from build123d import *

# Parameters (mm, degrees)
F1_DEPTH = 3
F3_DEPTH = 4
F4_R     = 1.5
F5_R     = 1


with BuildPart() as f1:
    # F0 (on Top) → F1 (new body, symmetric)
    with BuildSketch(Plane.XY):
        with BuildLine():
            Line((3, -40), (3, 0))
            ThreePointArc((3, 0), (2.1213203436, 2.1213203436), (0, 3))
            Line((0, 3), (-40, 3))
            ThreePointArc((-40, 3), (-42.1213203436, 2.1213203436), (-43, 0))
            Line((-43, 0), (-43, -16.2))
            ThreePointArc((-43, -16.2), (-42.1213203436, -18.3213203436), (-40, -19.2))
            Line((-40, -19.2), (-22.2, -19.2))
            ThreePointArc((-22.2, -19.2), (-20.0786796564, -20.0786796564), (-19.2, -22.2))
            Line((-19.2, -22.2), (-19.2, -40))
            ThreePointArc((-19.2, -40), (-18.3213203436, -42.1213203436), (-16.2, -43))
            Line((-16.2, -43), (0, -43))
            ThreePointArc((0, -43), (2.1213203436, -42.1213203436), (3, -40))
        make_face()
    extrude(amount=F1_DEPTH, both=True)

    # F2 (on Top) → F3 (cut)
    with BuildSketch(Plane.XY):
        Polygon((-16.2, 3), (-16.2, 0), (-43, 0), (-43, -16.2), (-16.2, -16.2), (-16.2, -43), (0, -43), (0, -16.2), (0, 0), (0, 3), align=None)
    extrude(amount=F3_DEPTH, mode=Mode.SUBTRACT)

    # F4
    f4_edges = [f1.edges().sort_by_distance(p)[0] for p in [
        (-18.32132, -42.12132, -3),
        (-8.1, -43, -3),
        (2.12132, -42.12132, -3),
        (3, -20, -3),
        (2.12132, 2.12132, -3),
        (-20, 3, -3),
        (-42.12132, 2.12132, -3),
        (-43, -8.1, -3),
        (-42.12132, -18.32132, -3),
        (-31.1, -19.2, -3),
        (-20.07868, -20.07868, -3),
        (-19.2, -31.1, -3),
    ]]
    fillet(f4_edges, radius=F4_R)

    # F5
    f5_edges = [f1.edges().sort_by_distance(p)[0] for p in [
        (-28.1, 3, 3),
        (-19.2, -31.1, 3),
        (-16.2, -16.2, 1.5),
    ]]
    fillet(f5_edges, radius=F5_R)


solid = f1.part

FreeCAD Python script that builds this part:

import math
import FreeCAD as App
import Part
import Sketcher
from FreeCAD import Vector
Q = App.Units.Quantity


def edges_at(feature, points):
    """Names of the edges that pass closest to the given points."""
    edges = feature.Shape.Edges
    near = lambda p: min(range(len(edges)), key=lambda i: edges[i].distToShape(Part.Vertex(*p))[0])
    return sorted({f"Edge{near(p) + 1}" for p in points})

doc = App.newDocument("Part")
body = doc.addObject("PartDesign::Body", "Body")

# Sketch on XY plane
sketch1 = body.newObject("Sketcher::SketchObject", "Sketch")
sketch1.AttachmentSupport = (doc.getObject("XY_Plane"), [""])
sketch1.MapMode = "FlatFace"
sketch1.addGeometry([
    Part.LineSegment(Vector(3, -40, 0), Vector(3, 0, 0)),  # 0
    Part.ArcOfCircle(Part.Circle(Vector(0, 0, 0), Vector(0, 0, 1), 3), math.radians(0), math.radians(90)),  # 1
    Part.LineSegment(Vector(0, 3, 0), Vector(-40, 3, 0)),  # 2
    Part.ArcOfCircle(Part.Circle(Vector(-40, 0, 0), Vector(0, 0, 1), 3), math.radians(90), math.radians(180)),  # 3
    Part.LineSegment(Vector(-43, 0, 0), Vector(-43, -16.2, 0)),  # 4
    Part.ArcOfCircle(Part.Circle(Vector(-40, -16.2, 0), Vector(0, 0, 1), 3), math.radians(180), math.radians(270)),  # 5
    Part.LineSegment(Vector(-40, -19.2, 0), Vector(-22.2, -19.2, 0)),  # 6
    Part.ArcOfCircle(Part.Circle(Vector(-22.2, -22.2, 0), Vector(0, 0, 1), 3), math.radians(0), math.radians(90)),  # 7
    Part.LineSegment(Vector(-19.2, -22.2, 0), Vector(-19.2, -40, 0)),  # 8
    Part.ArcOfCircle(Part.Circle(Vector(-16.2, -40, 0), Vector(0, 0, 1), 3), math.radians(180), math.radians(270)),  # 9
    Part.LineSegment(Vector(-16.2, -43, 0), Vector(0, -43, 0)),  # 10
    Part.ArcOfCircle(Part.Circle(Vector(0, -40, 0), Vector(0, 0, 1), 3), math.radians(-90), math.radians(0)),  # 11
], False)
sketch1.addConstraint([
    Sketcher.Constraint("Tangent", 0, 2, 1, 1),
    Sketcher.Constraint("Tangent", 1, 2, 2, 1),
    Sketcher.Constraint("Tangent", 2, 2, 3, 1),
    Sketcher.Constraint("Tangent", 3, 2, 4, 1),
    Sketcher.Constraint("Tangent", 4, 2, 5, 1),
    Sketcher.Constraint("Tangent", 5, 2, 6, 1),
    Sketcher.Constraint("Tangent", 6, 2, 7, 2),
    Sketcher.Constraint("Tangent", 7, 1, 8, 1),
    Sketcher.Constraint("Tangent", 8, 2, 9, 1),
    Sketcher.Constraint("Tangent", 9, 2, 10, 1),
    Sketcher.Constraint("Tangent", 10, 2, 11, 1),
    Sketcher.Constraint("Tangent", 11, 2, 0, 1),
    Sketcher.Constraint("Vertical", 0),
    Sketcher.Constraint("Horizontal", 2),
    Sketcher.Constraint("Vertical", 4),
    Sketcher.Constraint("Horizontal", 6),
    Sketcher.Constraint("Vertical", 8),
    Sketcher.Constraint("Horizontal", 10),
    Sketcher.Constraint("Coincident", 1, 3, -1, 1),
    Sketcher.Constraint("Equal", 1, 3),
    Sketcher.Constraint("Equal", 3, 5),
    Sketcher.Constraint("Equal", 5, 7),
    Sketcher.Constraint("Equal", 7, 9),
    Sketcher.Constraint("Equal", 9, 11),
    Sketcher.Constraint("Equal", 2, 0),
    Sketcher.Constraint("Equal", 10, 4),
    Sketcher.Constraint("Radius", 1, Q("3 mm")),
    Sketcher.Constraint("DistanceX", 2, 2, 2, 1, Q("40 mm")),
    Sketcher.Constraint("DistanceX", 6, 1, 6, 2, Q("17.8 mm")),
])
pad1 = body.newObject("PartDesign::Pad", "Pad")
pad1.Profile = sketch1
pad1.Length = 6
pad1.Midplane = True

# Sketch on XY plane
sketch2 = body.newObject("Sketcher::SketchObject", "Sketch001")
sketch2.AttachmentSupport = (doc.getObject("XY_Plane"), [""])
sketch2.MapMode = "FlatFace"
sketch2.addGeometry([
    Part.LineSegment(Vector(-16.2, 3, 0), Vector(-16.2, 0, 0)),  # 0
    Part.LineSegment(Vector(-16.2, 0, 0), Vector(-43, 0, 0)),  # 1
    Part.LineSegment(Vector(-43, 0, 0), Vector(-43, -16.2, 0)),  # 2
    Part.LineSegment(Vector(-43, -16.2, 0), Vector(-16.2, -16.2, 0)),  # 3
    Part.LineSegment(Vector(-16.2, -16.2, 0), Vector(-16.2, -43, 0)),  # 4
    Part.LineSegment(Vector(-16.2, -43, 0), Vector(0, -43, 0)),  # 5
    Part.LineSegment(Vector(0, -43, 0), Vector(0, 3, 0)),  # 6
    Part.LineSegment(Vector(0, 3, 0), Vector(-16.2, 3, 0)),  # 7
], False)
sketch2.addConstraint([
    Sketcher.Constraint("Coincident", 0, 2, 1, 1),
    Sketcher.Constraint("Coincident", 1, 2, 2, 1),
    Sketcher.Constraint("Coincident", 2, 2, 3, 1),
    Sketcher.Constraint("Coincident", 3, 2, 4, 1),
    Sketcher.Constraint("Coincident", 4, 2, 5, 1),
    Sketcher.Constraint("Coincident", 5, 2, 6, 1),
    Sketcher.Constraint("Coincident", 6, 2, 7, 1),
    Sketcher.Constraint("Coincident", 7, 2, 0, 1),
    Sketcher.Constraint("Vertical", 0),
    Sketcher.Constraint("Horizontal", 1),
    Sketcher.Constraint("Vertical", 2),
    Sketcher.Constraint("Horizontal", 3),
    Sketcher.Constraint("Vertical", 4),
    Sketcher.Constraint("Horizontal", 5),
    Sketcher.Constraint("Vertical", 6),
    Sketcher.Constraint("Horizontal", 7),
    Sketcher.Constraint("PointOnObject", 0, 2, -1),
    Sketcher.Constraint("PointOnObject", 5, 2, -2),
    Sketcher.Constraint("Vertical", 0, 2, 3, 2),
    Sketcher.Constraint("Equal", 7, 2),
    Sketcher.Constraint("Equal", 3, 4),
    Sketcher.Constraint("DistanceY", 0, 2, 0, 1, Q("3 mm")),
    Sketcher.Constraint("DistanceY", 6, 1, 6, 2, Q("46 mm")),
    Sketcher.Constraint("DistanceX", 1, 2, 1, 1, Q("26.8 mm")),
])
pocket1 = body.newObject("PartDesign::Pocket", "Pocket")
pocket1.Profile = sketch2
pocket1.Length = 4
pocket1.Reversed = True
doc.recompute()

fillet = body.newObject("PartDesign::Fillet", "Fillet")
fillet.Base = (pocket1, edges_at(pocket1, [
    (-18.321, -42.121, -3),
    (-8.1, -43, -3),
    (2.121, -42.121, -3),
    (3, -20, -3),
    (2.121, 2.121, -3),
    (-20, 3, -3),
    (-42.121, 2.121, -3),
    (-43, -8.1, -3),
    (-42.121, -18.321, -3),
    (-31.1, -19.2, -3),
    (-20.079, -20.079, -3),
    (-19.2, -31.1, -3),
]))
fillet.Radius = 1.5
doc.recompute()

fillet2 = body.newObject("PartDesign::Fillet", "Fillet001")
fillet2.Base = (fillet, edges_at(fillet, [(-28.1, 3, 3), (-19.2, -31.1, 3), (-16.2, -16.2, 1.5)]))
fillet2.Radius = 1

doc.recompute()
